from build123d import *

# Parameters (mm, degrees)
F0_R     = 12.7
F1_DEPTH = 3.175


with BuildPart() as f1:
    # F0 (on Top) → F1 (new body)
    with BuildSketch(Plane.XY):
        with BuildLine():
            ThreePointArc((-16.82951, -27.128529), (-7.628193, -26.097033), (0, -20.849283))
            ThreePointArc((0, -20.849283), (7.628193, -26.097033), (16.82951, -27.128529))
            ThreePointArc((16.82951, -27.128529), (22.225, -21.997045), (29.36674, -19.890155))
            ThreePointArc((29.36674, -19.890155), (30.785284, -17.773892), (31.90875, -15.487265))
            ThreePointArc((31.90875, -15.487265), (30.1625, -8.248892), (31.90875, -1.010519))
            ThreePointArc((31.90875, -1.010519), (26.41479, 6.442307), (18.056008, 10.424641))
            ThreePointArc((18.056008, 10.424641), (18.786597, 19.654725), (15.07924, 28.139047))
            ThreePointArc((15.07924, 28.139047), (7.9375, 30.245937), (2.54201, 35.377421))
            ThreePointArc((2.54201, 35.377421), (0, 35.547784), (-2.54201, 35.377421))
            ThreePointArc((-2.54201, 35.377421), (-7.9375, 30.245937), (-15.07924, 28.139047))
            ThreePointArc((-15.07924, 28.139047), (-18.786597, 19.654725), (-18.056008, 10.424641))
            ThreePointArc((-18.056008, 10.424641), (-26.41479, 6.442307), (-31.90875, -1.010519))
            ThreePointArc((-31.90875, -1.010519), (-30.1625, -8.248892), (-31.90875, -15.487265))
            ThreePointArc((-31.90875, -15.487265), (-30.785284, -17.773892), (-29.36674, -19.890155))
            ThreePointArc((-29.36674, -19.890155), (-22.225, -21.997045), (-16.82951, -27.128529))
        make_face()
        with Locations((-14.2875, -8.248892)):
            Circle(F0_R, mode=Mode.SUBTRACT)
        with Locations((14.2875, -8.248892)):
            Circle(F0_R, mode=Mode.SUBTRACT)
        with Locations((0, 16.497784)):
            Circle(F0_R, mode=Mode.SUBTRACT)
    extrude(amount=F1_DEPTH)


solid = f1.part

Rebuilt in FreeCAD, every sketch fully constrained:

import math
import FreeCAD as App
import Part
import Sketcher
from FreeCAD import Vector
Q = App.Units.Quantity

doc = App.newDocument("Part")
body = doc.addObject("PartDesign::Body", "Body")

# Sketch on XY plane
sketch1 = doc.addObject("Sketcher::SketchObject", "Sketch")
body.addObject(sketch1)
sketch1.AttachmentSupport = (doc.XY_Plane, [""])
sketch1.MapMode = "FlatFace"
sketch1.addGeometry([
    Part.ArcOfCircle(Part.Circle(Vector(-14, -8, 0), Vector(0, 0, 1), 19), math.radians(-98), math.radians(-41)),  # 0
    Part.ArcOfCircle(Part.Circle(Vector(14, -8, 0), Vector(0, 0, 1), 19), math.radians(-139), math.radians(-82)),  # 1
    Part.ArcOfCircle(Part.Circle(Vector(30, -36, 0), Vector(0, 0, 1), 16), math.radians(93), math.radians(147)),  # 2
    Part.ArcOfCircle(Part.Circle(Vector(14, -8, 0), Vector(0, 0, 1), 19), math.radians(-37.67), math.radians(-22.33)),  # 3
    Part.ArcOfCircle(Part.Circle(Vector(46, -8, 0), Vector(0, 0, 1), 16), math.radians(153), math.radians(207)),  # 4
    Part.ArcOfCircle(Part.Circle(Vector(14, -8, 0), Vector(0, 0, 1), 19), math.radians(22), math.radians(79)),  # 5
    Part.ArcOfCircle(Part.Circle(Vector(0, 16, 0), Vector(0, 0, 1), 19), math.radians(-19), math.radians(38)),  # 6
    Part.ArcOfCircle(Part.Circle(Vector(16, 44, 0), Vector(0, 0, 1), 16), math.radians(-147), math.radians(-93)),  # 7
    Part.ArcOfCircle(Part.Circle(Vector(0, 16, 0), Vector(0, 0, 1), 19), math.radians(82.33), math.radians(97.67)),  # 8
    Part.ArcOfCircle(Part.Circle(Vector(-16, 44, 0), Vector(0, 0, 1), 16), math.radians(-87), math.radians(-33)),  # 9
    Part.ArcOfCircle(Part.Circle(Vector(0, 16, 0), Vector(0, 0, 1), 19), math.radians(142), math.radians(199)),  # 10
    Part.ArcOfCircle(Part.Circle(Vector(-14, -8, 0), Vector(0, 0, 1), 19), math.radians(101), math.radians(158)),  # 11
    Part.ArcOfCircle(Part.Circle(Vector(-46, -8, 0), Vector(0, 0, 1), 16), math.radians(-27), math.radians(27)),  # 12
    Part.ArcOfCircle(Part.Circle(Vector(-14, -8, 0), Vector(0, 0, 1), 19), math.radians(-157.67), math.radians(-142.33)),  # 13
    Part.ArcOfCircle(Part.Circle(Vector(-30, -36, 0), Vector(0, 0, 1), 16), math.radians(33), math.radians(87)),  # 14
    Part.Circle(Vector(-14, -8, 0), Vector(0, 0, 1), 13),  # 15
    Part.Circle(Vector(14, -8, 0), Vector(0, 0, 1), 13),  # 16
    Part.Circle(Vector(0, 16, 0), Vector(0, 0, 1), 13),  # 17
], False)
sketch1.addConstraint([
    Sketcher.Constraint("Coincident", 0, 2, 1, 1),
    Sketcher.Constraint("Coincident", 1, 2, 2, 2),
    Sketcher.Constraint("Coincident", 2, 1, 3, 1),
    Sketcher.Constraint("Coincident", 3, 2, 4, 2),
    Sketcher.Constraint("Coincident", 4, 1, 5, 1),
    Sketcher.Constraint("Coincident", 5, 2, 6, 1),
    Sketcher.Constraint("Coincident", 6, 2, 7, 2),
    Sketcher.Constraint("Coincident", 7, 1, 8, 1),
    Sketcher.Constraint("Coincident", 8, 2, 9, 2),
    Sketcher.Constraint("Coincident", 9, 1, 10, 1),
    Sketcher.Constraint("Coincident", 10, 2, 11, 1),
    Sketcher.Constraint("Coincident", 11, 2, 12, 2),
    Sketcher.Constraint("Coincident", 12, 1, 13, 1),
    Sketcher.Constraint("Coincident", 13, 2, 14, 2),
    Sketcher.Constraint("Coincident", 14, 1, 0, 1),
    Sketcher.Constraint("Coincident", 5, 3, 1, 3),
    Sketcher.Constraint("Coincident", 10, 3, 6, 3),
    Sketcher.Constraint("Coincident", 11, 3, 0, 3),
    Sketcher.Constraint("Coincident", 15, 3, 0, 3),
    Sketcher.Constraint("Coincident", 16, 3, 1, 3),
    Sketcher.Constraint("Coincident", 17, 3, 6, 3),
    Sketcher.Constraint("Equal", 0, 1),
    Sketcher.Constraint("Equal", 2, 4),
    Sketcher.Constraint("Equal", 1, 5),
    Sketcher.Constraint("Equal", 4, 7),
    Sketcher.Constraint("Equal", 7, 9),
    Sketcher.Constraint("Equal", 6, 10),
    Sketcher.Constraint("Equal", 5, 11),
    Sketcher.Constraint("Equal", 9, 12),
    Sketcher.Constraint("Equal", 3, 13),
    Sketcher.Constraint("Equal", 12, 14),
    Sketcher.Constraint("Equal", 15, 16),
    Sketcher.Constraint("Equal", 16, 17),
    Sketcher.Constraint("Symmetric", 0, 3, 1, 3, -2),
    Sketcher.Constraint("Symmetric", 7, 3, 9, 3, -2),
    Sketcher.Constraint("Symmetric", 4, 3, 12, 3, -2),
    Sketcher.Constraint("Symmetric", 3, 3, 13, 3, -2),
    Sketcher.Constraint("Symmetric", 2, 3, 14, 3, -2),
    Sketcher.Constraint("PointOnObject", 8, 3, -2),
    Sketcher.Constraint("PointOnObject", 17, 3, -2),
    Sketcher.Constraint("Horizontal", 1, 3, 4, 3),
    Sketcher.Constraint("Vertical", 3, 2, 4, 1),
    Sketcher.Constraint("Diameter", 15, Q("1 in")),
    Sketcher.Constraint("Radius", 0, Q("0.75 in")),
    Sketcher.Constraint("Radius", 6, Q("0.7499999 in")),
    Sketcher.Constraint("Radius", 2, Q("0.625 in")),
    Sketcher.Constraint("DistanceX", 0, 3, 2, 3, Q("1.75 in")),
    Sketcher.Constraint("DistanceX", 1, 3, 4, 3, Q("1.2499999 in")),
    Sketcher.Constraint("DistanceX", 9, 3, 7, 3, Q("1.25 in")),
    Sketcher.Constraint("DistanceX", 0, 3, -1, 1, Q("0.5625 in")),
    Sketcher.Constraint("Radius", 3, 19.049963),
    Sketcher.Constraint("Radius", 8, 19.050024),
    Sketcher.Constraint("DistanceY", 5, 2, 6, 3, Q("0.2391001 in")),
    Sketcher.Constraint("DistanceY", 3, 3, 7, 3, 52.242999),
    Sketcher.Constraint("DistanceY", 0, 3, -1, 1, 8.248892),
    Sketcher.Constraint("DistanceY", 3, 3, -1, 1, 8.24891),
    Sketcher.Constraint("DistanceY", -1, 1, 8, 3, 16.49776),
    Sketcher.Constraint("DistanceX", -1, 1, 1, 2, 16.82951),
])
pad1 = doc.addObject("PartDesign::Pad", "Pad")
body.addObject(pad1)
pad1.Profile = sketch1
pad1.Length = Q("0.125 in")

doc.recompute()
